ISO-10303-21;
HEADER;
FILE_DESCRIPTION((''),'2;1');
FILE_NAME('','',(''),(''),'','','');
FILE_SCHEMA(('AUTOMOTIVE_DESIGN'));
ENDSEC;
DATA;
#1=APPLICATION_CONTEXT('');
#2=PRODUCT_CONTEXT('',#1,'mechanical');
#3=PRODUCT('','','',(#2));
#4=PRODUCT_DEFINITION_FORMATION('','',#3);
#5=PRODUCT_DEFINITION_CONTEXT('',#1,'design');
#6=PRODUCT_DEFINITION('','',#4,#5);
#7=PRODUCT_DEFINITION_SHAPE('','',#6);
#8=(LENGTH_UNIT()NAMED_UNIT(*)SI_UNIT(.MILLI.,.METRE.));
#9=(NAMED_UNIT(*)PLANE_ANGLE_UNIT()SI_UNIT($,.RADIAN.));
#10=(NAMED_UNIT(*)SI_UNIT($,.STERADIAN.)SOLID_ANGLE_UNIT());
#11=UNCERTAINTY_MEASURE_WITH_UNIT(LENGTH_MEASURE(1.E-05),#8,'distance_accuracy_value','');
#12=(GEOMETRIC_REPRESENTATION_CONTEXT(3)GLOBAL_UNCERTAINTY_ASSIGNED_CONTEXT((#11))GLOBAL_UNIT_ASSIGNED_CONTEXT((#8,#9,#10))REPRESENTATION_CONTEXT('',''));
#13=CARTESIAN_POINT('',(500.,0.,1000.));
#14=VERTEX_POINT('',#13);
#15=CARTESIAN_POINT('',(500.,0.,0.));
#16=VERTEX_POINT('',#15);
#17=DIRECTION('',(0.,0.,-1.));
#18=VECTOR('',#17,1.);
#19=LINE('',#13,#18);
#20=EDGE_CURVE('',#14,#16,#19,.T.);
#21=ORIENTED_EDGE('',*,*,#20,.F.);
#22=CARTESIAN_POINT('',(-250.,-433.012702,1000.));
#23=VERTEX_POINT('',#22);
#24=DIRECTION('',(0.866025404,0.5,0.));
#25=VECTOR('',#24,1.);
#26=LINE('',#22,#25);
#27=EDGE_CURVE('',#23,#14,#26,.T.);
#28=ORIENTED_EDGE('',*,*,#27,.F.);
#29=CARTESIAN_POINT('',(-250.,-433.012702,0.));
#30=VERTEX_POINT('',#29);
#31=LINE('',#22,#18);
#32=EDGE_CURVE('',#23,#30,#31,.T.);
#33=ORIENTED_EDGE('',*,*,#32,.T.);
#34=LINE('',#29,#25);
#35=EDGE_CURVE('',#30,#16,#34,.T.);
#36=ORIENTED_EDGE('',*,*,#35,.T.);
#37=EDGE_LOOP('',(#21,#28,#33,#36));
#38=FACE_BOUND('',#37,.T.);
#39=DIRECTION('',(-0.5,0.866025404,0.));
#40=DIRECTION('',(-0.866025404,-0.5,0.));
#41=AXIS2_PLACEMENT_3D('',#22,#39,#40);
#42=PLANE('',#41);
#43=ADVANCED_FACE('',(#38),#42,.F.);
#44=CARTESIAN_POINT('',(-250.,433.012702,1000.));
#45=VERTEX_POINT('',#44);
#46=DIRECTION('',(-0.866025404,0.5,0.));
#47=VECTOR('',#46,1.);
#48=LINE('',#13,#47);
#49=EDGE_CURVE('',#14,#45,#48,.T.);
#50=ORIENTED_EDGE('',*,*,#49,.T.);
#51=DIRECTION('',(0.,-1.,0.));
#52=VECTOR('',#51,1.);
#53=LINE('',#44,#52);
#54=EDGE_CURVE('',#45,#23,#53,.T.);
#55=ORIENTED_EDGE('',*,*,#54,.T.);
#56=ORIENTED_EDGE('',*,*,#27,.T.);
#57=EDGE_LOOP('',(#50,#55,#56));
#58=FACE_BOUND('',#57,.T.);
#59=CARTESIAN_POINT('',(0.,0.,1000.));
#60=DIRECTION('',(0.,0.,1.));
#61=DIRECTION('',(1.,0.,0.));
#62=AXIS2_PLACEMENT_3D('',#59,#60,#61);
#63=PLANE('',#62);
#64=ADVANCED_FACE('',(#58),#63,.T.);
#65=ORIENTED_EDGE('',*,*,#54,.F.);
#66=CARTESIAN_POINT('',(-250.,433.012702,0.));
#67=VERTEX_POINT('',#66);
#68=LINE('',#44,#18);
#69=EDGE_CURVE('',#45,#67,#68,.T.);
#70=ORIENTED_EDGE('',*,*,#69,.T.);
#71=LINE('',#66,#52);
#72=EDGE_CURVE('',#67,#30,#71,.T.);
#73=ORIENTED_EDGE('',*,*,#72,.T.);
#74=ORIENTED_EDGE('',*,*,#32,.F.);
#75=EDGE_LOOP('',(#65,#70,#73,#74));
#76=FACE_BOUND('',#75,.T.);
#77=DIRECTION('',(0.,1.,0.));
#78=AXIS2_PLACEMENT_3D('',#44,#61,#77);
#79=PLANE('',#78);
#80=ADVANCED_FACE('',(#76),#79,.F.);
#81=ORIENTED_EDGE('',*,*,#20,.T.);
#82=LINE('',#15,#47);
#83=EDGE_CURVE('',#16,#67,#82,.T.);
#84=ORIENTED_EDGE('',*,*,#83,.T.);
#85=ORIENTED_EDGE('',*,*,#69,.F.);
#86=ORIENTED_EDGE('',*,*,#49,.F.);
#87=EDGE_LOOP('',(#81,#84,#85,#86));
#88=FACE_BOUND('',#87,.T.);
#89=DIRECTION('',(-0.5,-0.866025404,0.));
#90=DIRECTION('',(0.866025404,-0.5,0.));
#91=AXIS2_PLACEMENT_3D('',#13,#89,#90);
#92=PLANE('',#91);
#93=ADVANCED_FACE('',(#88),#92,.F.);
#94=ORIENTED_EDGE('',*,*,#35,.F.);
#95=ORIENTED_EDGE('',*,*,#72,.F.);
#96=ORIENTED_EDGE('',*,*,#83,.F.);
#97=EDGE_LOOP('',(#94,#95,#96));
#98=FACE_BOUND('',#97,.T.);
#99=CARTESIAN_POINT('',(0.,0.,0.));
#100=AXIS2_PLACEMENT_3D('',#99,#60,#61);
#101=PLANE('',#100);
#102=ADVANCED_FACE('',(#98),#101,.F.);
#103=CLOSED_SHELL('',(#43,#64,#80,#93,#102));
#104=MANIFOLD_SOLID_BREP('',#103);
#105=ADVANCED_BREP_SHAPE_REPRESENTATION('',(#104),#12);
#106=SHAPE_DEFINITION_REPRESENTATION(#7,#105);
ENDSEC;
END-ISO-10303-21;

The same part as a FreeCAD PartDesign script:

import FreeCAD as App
import Part
import Sketcher
from FreeCAD import Vector
Q = App.Units.Quantity

doc = App.newDocument("Part")
body = doc.addObject("PartDesign::Body", "Body")

sketch1 = body.newObject("Sketcher::SketchObject", "Sketch")
sketch1.AttachmentSupport = (doc.getObject("XY_Plane"), [""])
sketch1.MapMode = "FlatFace"
sketch1.addGeometry([
    Part.LineSegment(Vector(500, 0, 0), Vector(-250, 433.012702, 0)),
    Part.LineSegment(Vector(-250, 433.012702, 0), Vector(-250, -433.012702, 0)),
    Part.LineSegment(Vector(-250, -433.012702, 0), Vector(500, 0, 0)),
], False)
sketch1.addConstraint([
    Sketcher.Constraint("Coincident", 0, 2, 1, 1),
    Sketcher.Constraint("Coincident", 1, 2, 2, 1),
    Sketcher.Constraint("Coincident", 2, 2, 0, 1),
    Sketcher.Constraint("Vertical", 1),
    Sketcher.Constraint("PointOnObject", 2, 2, -1),
    Sketcher.Constraint("Equal", 0, 2),
    Sketcher.Constraint("Angle", 0, Q("150 deg")),
    Sketcher.Constraint("DistanceX", 0, 2, -1, 1, Q("250 mm")),
    Sketcher.Constraint("DistanceX", -1, 1, 2, 2, Q("500 mm")),
])
pad1 = body.newObject("PartDesign::Pad", "Pad")
pad1.Profile = sketch1
pad1.Length = 1000

sketch2 = body.newObject("Sketcher::SketchObject", "Sketch001")
sketch2.AttachmentSupport = (doc.getObject("XY_Plane"), [""])
sketch2.MapMode = "FlatFace"
sketch2.addGeometry([
    Part.LineSegment(Vector(500, 0, 0), Vector(-250, 433.012702, 0)),
    Part.LineSegment(Vector(-250, 433.012702, 0), Vector(-250, -433.012702, 0)),
    Part.LineSegment(Vector(-250, -433.012702, 0), Vector(500, 0, 0)),
], False)
sketch2.addConstraint([
    Sketcher.Constraint("Coincident", 0, 2, 1, 1),
    Sketcher.Constraint("Coincident", 1, 2, 2, 1),
    Sketcher.Constraint("Coincident", 2, 2, 0, 1),
    Sketcher.Constraint("Vertical", 1),
    Sketcher.Constraint("PointOnObject", 2, 2, -1),
    Sketcher.Constraint("Equal", 0, 2),
    Sketcher.Constraint("Angle", 0, Q("150 deg")),
    Sketcher.Constraint("DistanceX", 0, 2, -1, 1, Q("250 mm")),
    Sketcher.Constraint("DistanceX", -1, 1, 2, 2, Q("500 mm")),
])
pad2 = body.newObject("PartDesign::Pad", "Pad001")
pad2.Profile = sketch2
pad2.Length = 1000

doc.recompute()
